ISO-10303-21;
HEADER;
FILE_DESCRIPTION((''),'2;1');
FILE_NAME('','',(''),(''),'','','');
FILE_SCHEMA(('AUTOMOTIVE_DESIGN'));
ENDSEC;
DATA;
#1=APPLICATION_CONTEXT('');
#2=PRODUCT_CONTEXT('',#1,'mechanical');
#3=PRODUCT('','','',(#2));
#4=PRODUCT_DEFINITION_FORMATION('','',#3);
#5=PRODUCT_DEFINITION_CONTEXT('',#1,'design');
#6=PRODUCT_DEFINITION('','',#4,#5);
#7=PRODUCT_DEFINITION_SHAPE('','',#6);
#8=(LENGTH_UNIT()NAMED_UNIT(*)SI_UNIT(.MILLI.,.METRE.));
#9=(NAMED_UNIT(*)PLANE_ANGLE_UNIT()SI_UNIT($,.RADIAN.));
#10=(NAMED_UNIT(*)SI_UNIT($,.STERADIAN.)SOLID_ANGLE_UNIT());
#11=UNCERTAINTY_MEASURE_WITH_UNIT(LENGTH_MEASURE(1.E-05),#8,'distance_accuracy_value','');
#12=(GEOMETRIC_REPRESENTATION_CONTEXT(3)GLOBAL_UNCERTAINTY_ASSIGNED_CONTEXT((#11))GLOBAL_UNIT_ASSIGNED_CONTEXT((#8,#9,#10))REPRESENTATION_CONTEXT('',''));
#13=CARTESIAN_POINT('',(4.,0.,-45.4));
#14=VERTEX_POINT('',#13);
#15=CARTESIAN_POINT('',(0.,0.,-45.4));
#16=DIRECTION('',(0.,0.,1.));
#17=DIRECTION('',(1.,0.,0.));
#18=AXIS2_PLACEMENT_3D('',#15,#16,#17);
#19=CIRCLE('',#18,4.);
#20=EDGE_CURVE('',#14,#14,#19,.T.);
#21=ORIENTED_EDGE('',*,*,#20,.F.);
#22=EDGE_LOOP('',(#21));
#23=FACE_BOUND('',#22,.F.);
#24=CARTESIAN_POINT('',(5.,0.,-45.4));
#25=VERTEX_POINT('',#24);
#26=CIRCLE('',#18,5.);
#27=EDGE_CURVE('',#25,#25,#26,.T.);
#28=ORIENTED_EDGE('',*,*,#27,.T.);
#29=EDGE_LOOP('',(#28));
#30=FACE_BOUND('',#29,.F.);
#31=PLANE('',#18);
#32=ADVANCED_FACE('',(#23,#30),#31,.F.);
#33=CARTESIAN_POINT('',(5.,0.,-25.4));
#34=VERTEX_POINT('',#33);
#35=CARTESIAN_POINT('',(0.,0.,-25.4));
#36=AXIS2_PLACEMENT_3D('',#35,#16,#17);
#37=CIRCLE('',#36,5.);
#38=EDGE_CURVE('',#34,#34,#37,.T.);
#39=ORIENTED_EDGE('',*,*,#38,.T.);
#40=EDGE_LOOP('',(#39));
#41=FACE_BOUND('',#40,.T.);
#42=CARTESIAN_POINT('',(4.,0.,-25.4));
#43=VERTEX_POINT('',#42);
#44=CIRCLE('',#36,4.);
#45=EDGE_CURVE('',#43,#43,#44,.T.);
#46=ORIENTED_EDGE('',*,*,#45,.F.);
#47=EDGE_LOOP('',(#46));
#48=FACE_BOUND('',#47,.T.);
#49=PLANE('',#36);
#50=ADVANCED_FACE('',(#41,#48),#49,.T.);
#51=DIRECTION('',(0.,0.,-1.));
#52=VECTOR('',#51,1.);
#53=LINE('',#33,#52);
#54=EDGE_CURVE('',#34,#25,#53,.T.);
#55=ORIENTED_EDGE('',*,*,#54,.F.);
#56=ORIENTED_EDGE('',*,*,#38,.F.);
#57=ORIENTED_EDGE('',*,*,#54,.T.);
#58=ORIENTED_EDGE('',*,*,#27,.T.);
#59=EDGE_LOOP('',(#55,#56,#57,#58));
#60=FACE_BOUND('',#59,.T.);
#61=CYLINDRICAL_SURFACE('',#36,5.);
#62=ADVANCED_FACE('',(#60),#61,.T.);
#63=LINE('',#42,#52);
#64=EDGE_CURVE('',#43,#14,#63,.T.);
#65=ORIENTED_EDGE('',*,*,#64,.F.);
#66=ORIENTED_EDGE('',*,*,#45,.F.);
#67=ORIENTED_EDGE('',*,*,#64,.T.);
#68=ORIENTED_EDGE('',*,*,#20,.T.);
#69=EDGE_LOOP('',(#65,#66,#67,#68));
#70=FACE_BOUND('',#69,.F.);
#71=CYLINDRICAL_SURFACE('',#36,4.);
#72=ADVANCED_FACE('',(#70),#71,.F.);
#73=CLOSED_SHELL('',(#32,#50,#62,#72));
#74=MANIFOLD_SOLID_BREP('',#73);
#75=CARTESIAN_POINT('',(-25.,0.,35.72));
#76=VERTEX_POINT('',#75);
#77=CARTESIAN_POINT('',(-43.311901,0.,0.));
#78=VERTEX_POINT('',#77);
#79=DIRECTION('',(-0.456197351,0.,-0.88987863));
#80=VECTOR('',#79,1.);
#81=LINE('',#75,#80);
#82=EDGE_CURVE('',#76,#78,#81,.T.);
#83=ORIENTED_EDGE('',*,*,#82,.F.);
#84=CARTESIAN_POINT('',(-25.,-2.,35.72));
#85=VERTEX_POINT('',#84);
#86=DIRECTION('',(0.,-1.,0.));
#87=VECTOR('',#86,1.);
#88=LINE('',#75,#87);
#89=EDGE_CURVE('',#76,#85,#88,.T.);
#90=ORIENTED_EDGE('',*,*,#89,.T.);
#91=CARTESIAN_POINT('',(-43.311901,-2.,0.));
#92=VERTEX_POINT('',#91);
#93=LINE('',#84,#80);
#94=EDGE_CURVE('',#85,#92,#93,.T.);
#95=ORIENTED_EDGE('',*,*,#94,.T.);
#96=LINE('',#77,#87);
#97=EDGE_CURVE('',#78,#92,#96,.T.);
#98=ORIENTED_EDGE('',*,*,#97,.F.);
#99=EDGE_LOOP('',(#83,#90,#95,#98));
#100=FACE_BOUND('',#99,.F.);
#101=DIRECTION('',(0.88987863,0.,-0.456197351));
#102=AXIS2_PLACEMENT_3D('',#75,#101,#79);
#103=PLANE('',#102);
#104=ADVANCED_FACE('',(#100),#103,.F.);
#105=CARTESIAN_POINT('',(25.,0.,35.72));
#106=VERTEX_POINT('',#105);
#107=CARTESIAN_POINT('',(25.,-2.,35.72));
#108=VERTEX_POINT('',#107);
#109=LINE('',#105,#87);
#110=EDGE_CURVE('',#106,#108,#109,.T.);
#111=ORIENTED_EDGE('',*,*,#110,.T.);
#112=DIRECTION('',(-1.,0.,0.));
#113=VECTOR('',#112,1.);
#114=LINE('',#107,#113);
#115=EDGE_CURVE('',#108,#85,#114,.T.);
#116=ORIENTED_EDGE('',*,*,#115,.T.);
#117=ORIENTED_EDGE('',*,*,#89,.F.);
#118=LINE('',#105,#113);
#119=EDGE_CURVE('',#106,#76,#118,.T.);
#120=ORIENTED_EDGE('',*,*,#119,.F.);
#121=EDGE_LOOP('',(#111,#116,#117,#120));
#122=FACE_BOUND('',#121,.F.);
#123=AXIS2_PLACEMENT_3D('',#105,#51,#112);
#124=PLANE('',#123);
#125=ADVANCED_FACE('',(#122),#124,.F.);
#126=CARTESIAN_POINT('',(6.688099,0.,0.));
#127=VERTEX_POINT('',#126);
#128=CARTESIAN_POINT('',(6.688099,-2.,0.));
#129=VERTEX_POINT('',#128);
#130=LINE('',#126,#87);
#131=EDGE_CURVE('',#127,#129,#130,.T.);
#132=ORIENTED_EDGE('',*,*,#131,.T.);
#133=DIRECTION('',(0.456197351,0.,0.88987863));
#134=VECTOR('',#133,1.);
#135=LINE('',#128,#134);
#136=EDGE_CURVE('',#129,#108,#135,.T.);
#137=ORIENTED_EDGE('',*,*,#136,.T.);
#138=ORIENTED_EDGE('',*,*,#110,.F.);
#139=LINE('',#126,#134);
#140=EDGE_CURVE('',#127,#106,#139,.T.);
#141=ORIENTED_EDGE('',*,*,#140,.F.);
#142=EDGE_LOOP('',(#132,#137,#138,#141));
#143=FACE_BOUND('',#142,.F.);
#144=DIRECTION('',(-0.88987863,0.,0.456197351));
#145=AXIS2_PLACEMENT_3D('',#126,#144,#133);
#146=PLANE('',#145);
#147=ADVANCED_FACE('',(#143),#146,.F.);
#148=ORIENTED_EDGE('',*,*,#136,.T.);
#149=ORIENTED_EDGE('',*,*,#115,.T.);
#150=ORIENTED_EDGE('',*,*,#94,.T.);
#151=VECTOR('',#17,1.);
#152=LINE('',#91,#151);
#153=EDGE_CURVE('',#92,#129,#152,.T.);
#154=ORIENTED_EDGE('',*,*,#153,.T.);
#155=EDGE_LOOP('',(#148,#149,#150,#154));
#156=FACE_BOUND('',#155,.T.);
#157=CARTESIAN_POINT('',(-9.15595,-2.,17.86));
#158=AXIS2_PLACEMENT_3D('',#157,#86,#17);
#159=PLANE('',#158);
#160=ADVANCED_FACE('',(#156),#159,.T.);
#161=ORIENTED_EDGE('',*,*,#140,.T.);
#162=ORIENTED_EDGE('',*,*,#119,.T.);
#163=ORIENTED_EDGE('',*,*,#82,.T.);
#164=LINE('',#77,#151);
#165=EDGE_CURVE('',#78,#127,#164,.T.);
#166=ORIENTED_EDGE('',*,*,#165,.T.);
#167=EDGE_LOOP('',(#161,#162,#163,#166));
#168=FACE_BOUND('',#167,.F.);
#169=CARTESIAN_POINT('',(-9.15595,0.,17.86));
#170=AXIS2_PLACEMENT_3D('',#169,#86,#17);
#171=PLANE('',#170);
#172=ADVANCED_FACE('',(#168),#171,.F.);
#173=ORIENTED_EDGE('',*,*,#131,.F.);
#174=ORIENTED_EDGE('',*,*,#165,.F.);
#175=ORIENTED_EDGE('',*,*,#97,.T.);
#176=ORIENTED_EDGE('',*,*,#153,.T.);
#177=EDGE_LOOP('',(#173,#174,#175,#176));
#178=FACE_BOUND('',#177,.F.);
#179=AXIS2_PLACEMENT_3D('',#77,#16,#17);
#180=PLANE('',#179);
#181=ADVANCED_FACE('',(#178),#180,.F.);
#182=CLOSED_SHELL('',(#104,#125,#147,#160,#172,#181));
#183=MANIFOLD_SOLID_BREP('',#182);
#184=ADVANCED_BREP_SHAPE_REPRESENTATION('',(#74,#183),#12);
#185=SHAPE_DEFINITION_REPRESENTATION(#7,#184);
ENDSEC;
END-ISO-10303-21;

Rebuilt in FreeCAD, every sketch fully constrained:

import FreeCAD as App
import Part
import Sketcher


def add_polygon(sketch, points):
    """Adds a closed chain of lines whose ends are joined by coincident constraints."""
    first, n = sketch.GeometryCount, len(points)
    for a, b in zip(points, points[1:] + points[:1]):
        sketch.addGeometry(Part.LineSegment(App.Vector(*a, 0), App.Vector(*b, 0)), False)
    for i in range(n):
        sketch.addConstraint(Sketcher.Constraint("Coincident", first + i, 2, first + (i + 1) % n, 1))

doc = App.newDocument("Part")
body = doc.addObject("PartDesign::Body", "Body")

# Sketch on XZ plane
sketch1 = body.newObject("Sketcher::SketchObject", "Sketch")
sketch1.AttachmentSupport = (doc.getObject("XZ_Plane"), [""])
sketch1.MapMode = "FlatFace"
add_polygon(sketch1, [(25, 36), (-25, 36), (-43, 0), (7, 0)])  # lines 0-3
sketch1.addConstraint([
    Sketcher.Constraint("Horizontal", 0),
    Sketcher.Constraint("Horizontal", 2),
    Sketcher.Constraint("PointOnObject", 1, 2, -1),
    Sketcher.Constraint("Parallel", 1, 3),
    Sketcher.Constraint("DistanceX", 0, 2, 0, 1, 50.0),
    Sketcher.Constraint("DistanceX", 0, 2, -1, 1, 25.0),
    Sketcher.Constraint("DistanceY", -1, 1, 0, 2, 35.72),
    Sketcher.Constraint("DistanceX", 1, 2, -1, 1, 43.311901),
])
pad1 = body.newObject("PartDesign::Pad", "Pad")
pad1.Profile = sketch1
pad1.Length = 2
body2 = doc.addObject("PartDesign::Body", "Body001")

# Sketch on XY plane
sketch2 = body2.newObject("Sketcher::SketchObject", "Sketch001")
sketch2.AttachmentSupport = (doc.getObject("XY_Plane001"), [""])
sketch2.MapMode = "FlatFace"
sketch2.AttachmentOffset = App.Placement(App.Vector(0, 0, -25.4), App.Rotation())
sketch2.addGeometry([
    Part.Circle(App.Vector(0, 0, 0), App.Vector(0, 0, 1), 5),
    Part.Circle(App.Vector(0, 0, 0), App.Vector(0, 0, 1), 4),
], False)
sketch2.addConstraint([
    Sketcher.Constraint("Coincident", 0, 3, -1, 1),
    Sketcher.Constraint("Coincident", 1, 3, -1, 1),
    Sketcher.Constraint("Diameter", 0, 10.0),
    Sketcher.Constraint("Diameter", 1, 8.0),
])
pad2 = body2.newObject("PartDesign::Pad", "Pad001")
pad2.Profile = sketch2
pad2.Length = 20
pad2.Reversed = True

doc.recompute()
